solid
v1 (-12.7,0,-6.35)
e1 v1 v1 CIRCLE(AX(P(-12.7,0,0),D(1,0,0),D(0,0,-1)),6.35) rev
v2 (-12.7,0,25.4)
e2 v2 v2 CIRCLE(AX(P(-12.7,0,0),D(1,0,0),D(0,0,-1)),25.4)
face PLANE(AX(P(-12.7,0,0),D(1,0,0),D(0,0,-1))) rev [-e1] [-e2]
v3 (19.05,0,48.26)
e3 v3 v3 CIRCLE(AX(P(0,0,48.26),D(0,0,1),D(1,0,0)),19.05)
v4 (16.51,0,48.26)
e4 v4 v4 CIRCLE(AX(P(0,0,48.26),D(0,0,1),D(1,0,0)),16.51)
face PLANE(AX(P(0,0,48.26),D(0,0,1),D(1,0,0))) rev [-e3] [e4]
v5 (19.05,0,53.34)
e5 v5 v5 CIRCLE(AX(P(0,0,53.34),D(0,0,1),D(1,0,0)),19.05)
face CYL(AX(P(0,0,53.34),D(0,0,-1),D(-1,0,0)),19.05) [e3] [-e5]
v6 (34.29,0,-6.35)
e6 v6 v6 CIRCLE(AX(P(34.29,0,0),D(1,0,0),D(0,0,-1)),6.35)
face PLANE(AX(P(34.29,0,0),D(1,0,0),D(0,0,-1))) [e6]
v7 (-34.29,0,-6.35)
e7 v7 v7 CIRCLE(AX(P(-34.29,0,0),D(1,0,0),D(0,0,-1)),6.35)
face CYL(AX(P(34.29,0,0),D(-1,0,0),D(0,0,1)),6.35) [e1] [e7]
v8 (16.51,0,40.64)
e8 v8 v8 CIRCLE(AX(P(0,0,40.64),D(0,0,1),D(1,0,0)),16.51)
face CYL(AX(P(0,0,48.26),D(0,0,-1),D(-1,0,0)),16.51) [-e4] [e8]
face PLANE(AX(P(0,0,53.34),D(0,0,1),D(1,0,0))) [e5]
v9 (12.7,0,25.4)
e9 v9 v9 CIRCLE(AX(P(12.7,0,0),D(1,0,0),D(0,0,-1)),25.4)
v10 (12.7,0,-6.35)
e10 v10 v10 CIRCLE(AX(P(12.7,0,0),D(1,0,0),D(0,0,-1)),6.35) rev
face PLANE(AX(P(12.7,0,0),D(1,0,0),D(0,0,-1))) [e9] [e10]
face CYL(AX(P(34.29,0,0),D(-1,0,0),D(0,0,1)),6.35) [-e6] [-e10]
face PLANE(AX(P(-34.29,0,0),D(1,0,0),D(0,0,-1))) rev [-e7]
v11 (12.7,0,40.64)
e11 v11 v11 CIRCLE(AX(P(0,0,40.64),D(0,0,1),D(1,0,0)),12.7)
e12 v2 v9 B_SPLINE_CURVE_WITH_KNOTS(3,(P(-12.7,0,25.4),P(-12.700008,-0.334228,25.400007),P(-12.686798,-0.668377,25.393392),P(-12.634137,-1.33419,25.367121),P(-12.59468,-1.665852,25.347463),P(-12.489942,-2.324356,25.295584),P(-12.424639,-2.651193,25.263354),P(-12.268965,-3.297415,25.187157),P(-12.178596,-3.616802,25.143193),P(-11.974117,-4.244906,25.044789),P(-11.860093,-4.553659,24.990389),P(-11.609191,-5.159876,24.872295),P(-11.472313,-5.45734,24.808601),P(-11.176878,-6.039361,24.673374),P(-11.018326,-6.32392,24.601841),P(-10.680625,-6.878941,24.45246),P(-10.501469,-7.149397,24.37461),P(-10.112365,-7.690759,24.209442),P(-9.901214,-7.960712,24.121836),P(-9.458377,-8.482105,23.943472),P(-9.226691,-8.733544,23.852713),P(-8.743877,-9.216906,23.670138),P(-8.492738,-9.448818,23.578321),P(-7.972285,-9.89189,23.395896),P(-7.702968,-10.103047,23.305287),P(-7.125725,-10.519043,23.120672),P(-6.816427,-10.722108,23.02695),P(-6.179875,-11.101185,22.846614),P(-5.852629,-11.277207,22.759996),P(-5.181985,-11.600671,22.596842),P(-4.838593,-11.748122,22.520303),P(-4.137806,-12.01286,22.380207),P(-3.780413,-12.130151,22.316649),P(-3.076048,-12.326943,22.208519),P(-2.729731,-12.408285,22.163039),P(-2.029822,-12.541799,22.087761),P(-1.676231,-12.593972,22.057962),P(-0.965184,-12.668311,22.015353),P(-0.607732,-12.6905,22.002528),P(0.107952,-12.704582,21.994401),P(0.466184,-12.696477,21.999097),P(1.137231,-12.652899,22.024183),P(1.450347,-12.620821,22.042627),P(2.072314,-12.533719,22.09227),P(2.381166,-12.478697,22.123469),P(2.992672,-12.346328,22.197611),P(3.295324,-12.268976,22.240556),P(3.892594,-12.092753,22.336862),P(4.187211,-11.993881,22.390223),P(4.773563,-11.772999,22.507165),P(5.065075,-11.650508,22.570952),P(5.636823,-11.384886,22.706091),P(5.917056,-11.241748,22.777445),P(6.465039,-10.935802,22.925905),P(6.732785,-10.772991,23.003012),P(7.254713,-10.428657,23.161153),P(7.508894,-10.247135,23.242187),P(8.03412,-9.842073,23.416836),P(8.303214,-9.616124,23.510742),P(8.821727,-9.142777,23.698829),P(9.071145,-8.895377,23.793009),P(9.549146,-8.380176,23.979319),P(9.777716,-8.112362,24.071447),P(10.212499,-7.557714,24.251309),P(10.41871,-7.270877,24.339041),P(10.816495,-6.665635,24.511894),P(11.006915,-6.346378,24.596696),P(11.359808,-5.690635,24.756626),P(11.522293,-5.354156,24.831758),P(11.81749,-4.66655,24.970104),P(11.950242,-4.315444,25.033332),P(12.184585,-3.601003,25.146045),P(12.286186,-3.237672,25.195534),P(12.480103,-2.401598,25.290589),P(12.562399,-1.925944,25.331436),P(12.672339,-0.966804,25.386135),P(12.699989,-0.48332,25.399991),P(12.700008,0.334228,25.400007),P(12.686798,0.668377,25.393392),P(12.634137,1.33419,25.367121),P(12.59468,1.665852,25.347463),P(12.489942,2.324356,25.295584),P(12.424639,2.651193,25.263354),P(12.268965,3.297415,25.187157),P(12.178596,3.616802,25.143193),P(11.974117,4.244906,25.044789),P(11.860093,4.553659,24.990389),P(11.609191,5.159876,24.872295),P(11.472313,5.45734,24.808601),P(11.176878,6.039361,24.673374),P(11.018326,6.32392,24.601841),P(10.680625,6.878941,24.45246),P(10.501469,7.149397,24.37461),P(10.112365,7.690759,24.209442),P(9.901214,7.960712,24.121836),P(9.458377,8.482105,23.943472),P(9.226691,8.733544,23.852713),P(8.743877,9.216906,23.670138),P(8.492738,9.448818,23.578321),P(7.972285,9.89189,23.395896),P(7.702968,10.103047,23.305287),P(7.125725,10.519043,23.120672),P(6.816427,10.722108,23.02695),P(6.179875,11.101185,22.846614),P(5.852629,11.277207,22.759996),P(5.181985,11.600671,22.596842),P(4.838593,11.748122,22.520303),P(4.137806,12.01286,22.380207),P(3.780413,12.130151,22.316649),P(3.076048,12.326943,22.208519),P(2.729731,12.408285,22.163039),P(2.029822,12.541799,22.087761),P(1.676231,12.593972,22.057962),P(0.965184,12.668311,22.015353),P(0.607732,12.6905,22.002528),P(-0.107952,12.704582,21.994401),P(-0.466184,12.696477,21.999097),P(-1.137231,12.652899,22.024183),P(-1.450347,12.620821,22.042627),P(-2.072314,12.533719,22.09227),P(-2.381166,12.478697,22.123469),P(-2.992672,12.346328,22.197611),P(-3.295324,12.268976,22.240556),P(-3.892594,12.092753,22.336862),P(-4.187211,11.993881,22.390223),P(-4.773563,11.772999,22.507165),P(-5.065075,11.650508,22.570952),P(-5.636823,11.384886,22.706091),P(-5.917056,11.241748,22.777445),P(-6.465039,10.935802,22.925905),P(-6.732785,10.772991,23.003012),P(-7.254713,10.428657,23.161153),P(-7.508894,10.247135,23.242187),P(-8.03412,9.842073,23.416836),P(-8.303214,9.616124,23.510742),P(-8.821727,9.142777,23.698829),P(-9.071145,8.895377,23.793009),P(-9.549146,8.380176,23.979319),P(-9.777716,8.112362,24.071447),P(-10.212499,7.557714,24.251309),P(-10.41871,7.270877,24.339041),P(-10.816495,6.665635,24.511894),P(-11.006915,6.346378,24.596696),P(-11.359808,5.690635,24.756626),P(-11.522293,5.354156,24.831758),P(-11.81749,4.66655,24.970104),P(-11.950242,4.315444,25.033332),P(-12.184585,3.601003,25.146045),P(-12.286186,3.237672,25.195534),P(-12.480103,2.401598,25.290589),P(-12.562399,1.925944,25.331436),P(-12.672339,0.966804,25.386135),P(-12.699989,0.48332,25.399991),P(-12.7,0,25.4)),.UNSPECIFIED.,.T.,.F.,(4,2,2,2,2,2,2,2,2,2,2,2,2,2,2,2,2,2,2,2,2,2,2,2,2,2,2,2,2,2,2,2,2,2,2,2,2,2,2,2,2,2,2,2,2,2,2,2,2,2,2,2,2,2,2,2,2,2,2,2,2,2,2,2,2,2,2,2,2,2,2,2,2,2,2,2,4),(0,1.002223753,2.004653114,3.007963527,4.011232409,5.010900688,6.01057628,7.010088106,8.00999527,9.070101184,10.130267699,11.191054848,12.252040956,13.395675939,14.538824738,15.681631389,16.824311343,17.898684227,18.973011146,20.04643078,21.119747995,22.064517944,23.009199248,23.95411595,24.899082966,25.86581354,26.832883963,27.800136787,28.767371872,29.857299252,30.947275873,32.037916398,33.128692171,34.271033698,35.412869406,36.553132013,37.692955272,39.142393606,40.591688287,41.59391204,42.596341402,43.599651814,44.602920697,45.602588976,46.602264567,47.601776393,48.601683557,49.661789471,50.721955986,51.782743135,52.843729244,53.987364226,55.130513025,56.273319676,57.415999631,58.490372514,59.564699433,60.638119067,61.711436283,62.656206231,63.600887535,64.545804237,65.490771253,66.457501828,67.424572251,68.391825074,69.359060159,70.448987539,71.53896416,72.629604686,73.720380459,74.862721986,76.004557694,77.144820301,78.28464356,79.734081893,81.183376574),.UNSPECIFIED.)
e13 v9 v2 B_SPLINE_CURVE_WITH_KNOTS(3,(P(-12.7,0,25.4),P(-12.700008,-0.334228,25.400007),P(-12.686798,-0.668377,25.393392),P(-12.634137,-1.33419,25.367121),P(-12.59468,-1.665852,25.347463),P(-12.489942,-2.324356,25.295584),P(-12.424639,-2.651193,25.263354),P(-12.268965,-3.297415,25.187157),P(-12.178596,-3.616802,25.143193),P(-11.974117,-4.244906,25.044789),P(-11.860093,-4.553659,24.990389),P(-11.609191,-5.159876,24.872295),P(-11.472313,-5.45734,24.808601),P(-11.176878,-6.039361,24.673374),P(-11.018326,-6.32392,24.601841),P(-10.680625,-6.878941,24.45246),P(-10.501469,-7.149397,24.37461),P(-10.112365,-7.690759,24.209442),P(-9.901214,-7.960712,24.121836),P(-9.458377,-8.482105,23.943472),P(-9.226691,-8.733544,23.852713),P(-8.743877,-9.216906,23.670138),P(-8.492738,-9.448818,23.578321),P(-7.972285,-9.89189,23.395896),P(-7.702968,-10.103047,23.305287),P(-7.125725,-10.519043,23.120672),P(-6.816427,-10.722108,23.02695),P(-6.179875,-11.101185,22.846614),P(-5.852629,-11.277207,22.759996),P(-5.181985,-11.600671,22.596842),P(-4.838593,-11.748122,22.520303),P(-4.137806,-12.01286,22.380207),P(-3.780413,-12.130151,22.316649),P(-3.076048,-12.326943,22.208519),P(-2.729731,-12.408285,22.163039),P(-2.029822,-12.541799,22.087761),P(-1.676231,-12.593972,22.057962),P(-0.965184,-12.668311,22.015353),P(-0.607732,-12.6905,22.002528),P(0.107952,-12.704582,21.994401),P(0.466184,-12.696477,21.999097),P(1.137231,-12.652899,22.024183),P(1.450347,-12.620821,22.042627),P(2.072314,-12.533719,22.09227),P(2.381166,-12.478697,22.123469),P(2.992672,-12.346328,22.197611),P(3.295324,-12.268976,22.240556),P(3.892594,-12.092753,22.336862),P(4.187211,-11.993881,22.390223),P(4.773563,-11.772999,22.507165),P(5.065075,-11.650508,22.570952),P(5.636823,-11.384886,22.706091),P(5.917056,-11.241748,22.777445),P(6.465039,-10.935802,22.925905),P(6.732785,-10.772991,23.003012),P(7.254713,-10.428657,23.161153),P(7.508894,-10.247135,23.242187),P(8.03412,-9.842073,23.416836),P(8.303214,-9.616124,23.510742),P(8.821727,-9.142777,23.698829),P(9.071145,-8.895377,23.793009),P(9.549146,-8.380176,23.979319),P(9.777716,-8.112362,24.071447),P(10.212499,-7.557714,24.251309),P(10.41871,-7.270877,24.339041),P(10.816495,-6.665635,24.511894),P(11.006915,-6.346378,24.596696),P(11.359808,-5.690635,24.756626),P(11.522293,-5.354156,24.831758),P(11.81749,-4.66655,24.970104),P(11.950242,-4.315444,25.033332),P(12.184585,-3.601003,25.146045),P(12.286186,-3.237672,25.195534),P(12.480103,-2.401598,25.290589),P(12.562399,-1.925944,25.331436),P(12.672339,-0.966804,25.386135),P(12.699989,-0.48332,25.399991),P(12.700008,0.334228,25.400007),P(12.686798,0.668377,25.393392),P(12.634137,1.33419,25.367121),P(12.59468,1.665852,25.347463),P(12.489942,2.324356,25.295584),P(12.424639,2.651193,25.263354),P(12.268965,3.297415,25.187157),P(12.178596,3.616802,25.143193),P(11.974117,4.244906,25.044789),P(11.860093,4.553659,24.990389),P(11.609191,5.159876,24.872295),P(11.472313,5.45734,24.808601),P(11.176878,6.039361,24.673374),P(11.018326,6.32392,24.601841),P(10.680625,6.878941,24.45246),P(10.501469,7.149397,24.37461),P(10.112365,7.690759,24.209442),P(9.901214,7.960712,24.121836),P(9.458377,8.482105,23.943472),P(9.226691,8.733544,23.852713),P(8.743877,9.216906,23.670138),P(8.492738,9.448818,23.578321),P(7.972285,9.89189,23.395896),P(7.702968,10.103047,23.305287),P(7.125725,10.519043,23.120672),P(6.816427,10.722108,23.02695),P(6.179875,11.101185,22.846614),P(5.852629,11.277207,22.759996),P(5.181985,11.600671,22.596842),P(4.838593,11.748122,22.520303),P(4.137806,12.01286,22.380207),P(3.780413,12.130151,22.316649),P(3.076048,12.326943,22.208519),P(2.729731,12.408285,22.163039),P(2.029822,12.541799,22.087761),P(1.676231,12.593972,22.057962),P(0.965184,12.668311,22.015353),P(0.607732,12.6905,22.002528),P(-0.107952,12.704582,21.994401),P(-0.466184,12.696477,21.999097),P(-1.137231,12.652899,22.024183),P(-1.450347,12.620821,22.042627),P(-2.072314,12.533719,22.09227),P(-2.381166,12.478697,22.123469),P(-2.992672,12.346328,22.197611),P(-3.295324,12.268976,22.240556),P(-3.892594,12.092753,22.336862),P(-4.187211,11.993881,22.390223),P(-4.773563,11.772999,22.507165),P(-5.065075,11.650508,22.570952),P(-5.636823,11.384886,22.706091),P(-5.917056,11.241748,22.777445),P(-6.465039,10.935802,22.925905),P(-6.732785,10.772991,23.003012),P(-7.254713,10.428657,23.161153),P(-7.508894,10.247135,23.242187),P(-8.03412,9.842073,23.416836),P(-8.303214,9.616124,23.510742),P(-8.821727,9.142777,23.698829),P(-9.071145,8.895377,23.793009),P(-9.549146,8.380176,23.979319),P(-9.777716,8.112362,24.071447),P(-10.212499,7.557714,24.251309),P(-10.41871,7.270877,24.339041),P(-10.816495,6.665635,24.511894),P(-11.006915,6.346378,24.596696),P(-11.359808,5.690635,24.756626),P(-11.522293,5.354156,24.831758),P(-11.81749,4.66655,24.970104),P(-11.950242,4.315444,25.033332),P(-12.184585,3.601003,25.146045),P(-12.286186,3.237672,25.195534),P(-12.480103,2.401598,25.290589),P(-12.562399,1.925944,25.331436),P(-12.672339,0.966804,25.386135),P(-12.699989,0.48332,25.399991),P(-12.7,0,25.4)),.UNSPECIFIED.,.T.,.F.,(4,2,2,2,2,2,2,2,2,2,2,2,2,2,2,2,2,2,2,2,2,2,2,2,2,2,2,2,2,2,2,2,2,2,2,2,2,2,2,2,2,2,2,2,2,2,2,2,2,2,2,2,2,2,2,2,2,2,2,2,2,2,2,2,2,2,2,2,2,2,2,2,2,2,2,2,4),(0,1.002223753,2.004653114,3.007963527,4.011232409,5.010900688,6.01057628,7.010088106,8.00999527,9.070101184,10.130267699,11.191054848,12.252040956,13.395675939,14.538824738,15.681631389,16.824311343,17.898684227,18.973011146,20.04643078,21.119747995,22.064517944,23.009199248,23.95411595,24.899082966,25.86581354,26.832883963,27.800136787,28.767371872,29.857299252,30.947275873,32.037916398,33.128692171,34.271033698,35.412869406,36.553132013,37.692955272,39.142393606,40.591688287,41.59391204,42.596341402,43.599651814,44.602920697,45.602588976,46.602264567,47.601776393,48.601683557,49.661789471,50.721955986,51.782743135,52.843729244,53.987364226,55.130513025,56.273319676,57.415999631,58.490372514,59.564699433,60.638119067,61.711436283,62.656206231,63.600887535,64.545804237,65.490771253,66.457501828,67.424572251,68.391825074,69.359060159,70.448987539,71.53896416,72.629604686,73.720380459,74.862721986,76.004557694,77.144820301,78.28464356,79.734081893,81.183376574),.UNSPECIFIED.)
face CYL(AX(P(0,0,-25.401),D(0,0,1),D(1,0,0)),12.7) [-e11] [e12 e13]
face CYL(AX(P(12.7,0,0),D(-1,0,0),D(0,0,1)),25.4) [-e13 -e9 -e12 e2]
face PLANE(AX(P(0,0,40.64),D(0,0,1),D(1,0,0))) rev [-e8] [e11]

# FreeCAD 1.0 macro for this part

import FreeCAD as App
import Part
import Sketcher
from FreeCAD import Vector
Q = App.Units.Quantity

doc = App.newDocument("Part")
body = doc.addObject("PartDesign::Body", "Body")

# Sketch on YZ plane
sketch1 = body.newObject("Sketcher::SketchObject", "Sketch")
sketch1.AttachmentSupport = (doc.getObject("YZ_Plane"), [""])
sketch1.MapMode = "FlatFace"
sketch1.addGeometry(Part.Circle(Vector(0, 0, 0), Vector(0, 0, 1), 25), False)
sketch1.addConstraint(Sketcher.Constraint("Coincident", 0, 3, -1, 1))
sketch1.addConstraint(Sketcher.Constraint("Diameter", 0, Q("2 in")))
pad1 = body.newObject("PartDesign::Pad", "Pad")
pad1.Profile = sketch1
pad1.Length = Q("1 in")
pad1.Midplane = True

# Sketch on XY plane
sketch2 = body.newObject("Sketcher::SketchObject", "Sketch001")
sketch2.AttachmentSupport = (doc.getObject("XY_Plane"), [""])
sketch2.MapMode = "FlatFace"
sketch2.AttachmentOffset = App.Placement(Vector(0, 0, 1.6 * 25.4), App.Rotation())
sketch2.addGeometry(Part.Circle(Vector(0, 0, 0), Vector(0, 0, 1), 13), False)
sketch2.addConstraint(Sketcher.Constraint("Coincident", 0, 3, -1, 1))
sketch2.addConstraint(Sketcher.Constraint("Diameter", 0, Q("1 in")))
pad2 = body.newObject("PartDesign::Pad", "Pad001")
pad2.Profile = sketch2
pad2.Type = "UpToFirst"
pad2.Reversed = True

# Sketch on XY plane
sketch3 = body.newObject("Sketcher::SketchObject", "Sketch002")
sketch3.AttachmentSupport = (doc.getObject("XY_Plane"), [""])
sketch3.MapMode = "FlatFace"
sketch3.AttachmentOffset = App.Placement(Vector(0, 0, 1.6 * 25.4), App.Rotation())
sketch3.addGeometry(Part.Circle(Vector(0, 0, 0), Vector(0, 0, 1), 17), False)
sketch3.addConstraint(Sketcher.Constraint("Coincident", 0, 3, -1, 1))
sketch3.addConstraint(Sketcher.Constraint("Diameter", 0, Q("1.3 in")))
pad3 = body.newObject("PartDesign::Pad", "Pad002")
pad3.Profile = sketch3
pad3.Length = Q("0.3 in")

# Sketch on XY plane
sketch4 = body.newObject("Sketcher::SketchObject", "Sketch003")
sketch4.AttachmentSupport = (doc.getObject("XY_Plane"), [""])
sketch4.MapMode = "FlatFace"
sketch4.AttachmentOffset = App.Placement(Vector(0, 0, 1.9 * 25.4), App.Rotation())
sketch4.addGeometry(Part.Circle(Vector(0, 0, 0), Vector(0, 0, 1), 19), False)
sketch4.addConstraint(Sketcher.Constraint("Coincident", 0, 3, -1, 1))
sketch4.addConstraint(Sketcher.Constraint("Diameter", 0, Q("1.5 in")))
pad4 = body.newObject("PartDesign::Pad", "Pad003")
pad4.Profile = sketch4
pad4.Length = Q("0.2 in")

# Sketch on YZ plane
sketch5 = body.newObject("Sketcher::SketchObject", "Sketch004")
sketch5.AttachmentSupport = (doc.getObject("YZ_Plane"), [""])
sketch5.MapMode = "FlatFace"
sketch5.addGeometry(Part.Circle(Vector(0, 0, 0), Vector(0, 0, 1), 6), False)
sketch5.addConstraint(Sketcher.Constraint("Coincident", 0, 3, -1, 1))
sketch5.addConstraint(Sketcher.Constraint("Diameter", 0, Q("0.5 in")))
pad5 = body.newObject("PartDesign::Pad", "Pad004")
pad5.Profile = sketch5
pad5.Length = Q("2.7 in")
pad5.Midplane = True

doc.recompute()
